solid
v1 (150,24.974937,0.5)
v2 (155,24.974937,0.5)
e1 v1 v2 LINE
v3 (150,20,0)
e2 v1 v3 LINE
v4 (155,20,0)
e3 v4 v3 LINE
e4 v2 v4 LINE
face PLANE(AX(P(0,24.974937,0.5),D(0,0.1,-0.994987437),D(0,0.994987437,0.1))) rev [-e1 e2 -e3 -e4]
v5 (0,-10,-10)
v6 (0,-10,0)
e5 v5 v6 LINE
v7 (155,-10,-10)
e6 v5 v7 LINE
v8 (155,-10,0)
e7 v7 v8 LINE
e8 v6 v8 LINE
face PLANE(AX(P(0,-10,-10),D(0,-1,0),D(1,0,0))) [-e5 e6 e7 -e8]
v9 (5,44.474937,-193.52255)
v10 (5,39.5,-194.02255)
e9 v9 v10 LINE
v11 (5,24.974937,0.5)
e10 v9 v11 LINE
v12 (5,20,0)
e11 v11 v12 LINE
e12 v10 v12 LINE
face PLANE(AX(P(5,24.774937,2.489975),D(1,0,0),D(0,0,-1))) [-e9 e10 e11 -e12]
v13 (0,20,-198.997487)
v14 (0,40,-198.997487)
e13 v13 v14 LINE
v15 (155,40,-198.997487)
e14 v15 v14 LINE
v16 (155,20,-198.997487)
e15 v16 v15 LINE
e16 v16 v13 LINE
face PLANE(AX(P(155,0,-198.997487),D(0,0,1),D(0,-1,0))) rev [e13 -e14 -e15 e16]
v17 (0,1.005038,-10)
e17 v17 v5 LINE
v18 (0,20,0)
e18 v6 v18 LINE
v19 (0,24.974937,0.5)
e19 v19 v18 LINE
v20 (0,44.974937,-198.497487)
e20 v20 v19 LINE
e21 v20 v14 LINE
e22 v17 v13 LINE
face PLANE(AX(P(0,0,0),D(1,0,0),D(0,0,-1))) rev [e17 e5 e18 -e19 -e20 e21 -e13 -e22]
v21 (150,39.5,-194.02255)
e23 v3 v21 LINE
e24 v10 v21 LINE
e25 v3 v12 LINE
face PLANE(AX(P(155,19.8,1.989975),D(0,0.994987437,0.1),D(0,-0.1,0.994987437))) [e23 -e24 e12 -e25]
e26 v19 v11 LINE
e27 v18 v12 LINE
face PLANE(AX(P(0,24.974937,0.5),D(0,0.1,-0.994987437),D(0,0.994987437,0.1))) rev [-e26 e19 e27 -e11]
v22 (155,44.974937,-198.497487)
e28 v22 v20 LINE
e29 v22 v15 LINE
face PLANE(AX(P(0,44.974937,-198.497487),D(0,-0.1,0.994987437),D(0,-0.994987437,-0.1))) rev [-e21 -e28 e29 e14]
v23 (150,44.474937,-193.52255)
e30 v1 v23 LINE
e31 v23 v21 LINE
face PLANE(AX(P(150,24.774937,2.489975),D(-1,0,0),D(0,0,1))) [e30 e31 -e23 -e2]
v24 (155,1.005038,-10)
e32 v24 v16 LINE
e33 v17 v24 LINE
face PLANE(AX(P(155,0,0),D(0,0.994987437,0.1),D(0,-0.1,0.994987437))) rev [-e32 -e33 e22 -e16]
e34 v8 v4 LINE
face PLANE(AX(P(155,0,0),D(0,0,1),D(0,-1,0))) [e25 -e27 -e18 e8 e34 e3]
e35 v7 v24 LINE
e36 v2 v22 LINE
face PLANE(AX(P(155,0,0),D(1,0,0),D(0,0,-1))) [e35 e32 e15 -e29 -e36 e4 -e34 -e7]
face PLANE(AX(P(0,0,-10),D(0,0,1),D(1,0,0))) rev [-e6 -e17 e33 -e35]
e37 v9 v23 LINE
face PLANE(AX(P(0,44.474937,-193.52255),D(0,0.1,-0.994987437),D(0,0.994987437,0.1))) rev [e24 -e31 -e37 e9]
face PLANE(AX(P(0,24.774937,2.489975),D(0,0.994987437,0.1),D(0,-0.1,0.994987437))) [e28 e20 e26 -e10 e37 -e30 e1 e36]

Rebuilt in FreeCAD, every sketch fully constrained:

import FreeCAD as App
import Part
import Sketcher

doc = App.newDocument("Part")
body = doc.addObject("PartDesign::Body", "Body")

# Sketch on YZ plane
sketch1 = body.newObject("Sketcher::SketchObject", "Sketch")
sketch1.AttachmentSupport = (doc.getObject("YZ_Plane"), [""])
sketch1.MapMode = "FlatFace"
sketch1.addGeometry([
    Part.LineSegment(App.Vector(20, 0, 0), App.Vector(0, 0, 0)),
    Part.LineSegment(App.Vector(0, 0, 0), App.Vector(20, -199, 0)),
    Part.LineSegment(App.Vector(20, -199, 0), App.Vector(40, -199, 0)),
    Part.LineSegment(App.Vector(40, -199, 0), App.Vector(20, 0, 0)),
], False)
sketch1.addConstraint([
    Sketcher.Constraint("Coincident", 0, 2, 1, 1),
    Sketcher.Constraint("Coincident", 1, 2, 2, 1),
    Sketcher.Constraint("Coincident", 2, 2, 3, 1),
    Sketcher.Constraint("Coincident", 3, 2, 0, 1),
    Sketcher.Constraint("Horizontal", 0),
    Sketcher.Constraint("Horizontal", 2),
    Sketcher.Constraint("Coincident", 0, 2, -1, 1),
    Sketcher.Constraint("Parallel", 1, 3),
    Sketcher.Constraint("Vertical", 1, 2, 3, 2),
    Sketcher.Constraint("DistanceX", 0, 2, 0, 1, 20.0),
    Sketcher.Constraint("Distance", 1, 200.0),
])
pad1 = body.newObject("PartDesign::Pad", "Pad")
pad1.Profile = sketch1
pad1.Length = 155

# Sketch on XY plane
sketch2 = body.newObject("Sketcher::SketchObject", "Sketch001")
sketch2.AttachmentSupport = (doc.getObject("XY_Plane"), [""])
sketch2.MapMode = "FlatFace"
sketch2.addGeometry([
    Part.LineSegment(App.Vector(0, 10, 0), App.Vector(0, -10, 0)),
    Part.LineSegment(App.Vector(0, -10, 0), App.Vector(155, -10, 0)),
    Part.LineSegment(App.Vector(155, -10, 0), App.Vector(155, 10, 0)),
    Part.LineSegment(App.Vector(155, 10, 0), App.Vector(0, 10, 0)),
], False)
sketch2.addConstraint([
    Sketcher.Constraint("Coincident", 0, 2, 1, 1),
    Sketcher.Constraint("Coincident", 1, 2, 2, 1),
    Sketcher.Constraint("Coincident", 2, 2, 3, 1),
    Sketcher.Constraint("Coincident", 3, 2, 0, 1),
    Sketcher.Constraint("Vertical", 0),
    Sketcher.Constraint("Horizontal", 1),
    Sketcher.Constraint("Vertical", 2),
    Sketcher.Constraint("Horizontal", 3),
    Sketcher.Constraint("Symmetric", 0, 2, 3, 2, -1, 1),
    Sketcher.Constraint("DistanceX", 1, 1, 1, 2, 155.0),
    Sketcher.Constraint("DistanceY", 0, 2, 0, 1, 20.0),
])
pad2 = body.newObject("PartDesign::Pad", "Pad001")
pad2.Profile = sketch2
pad2.Length = 10
pad2.Reversed = True

# Sketch on an angled plane
sketch3 = body.newObject("Sketcher::SketchObject", "Sketch002")
sketch3.Placement = App.Placement(App.Vector(0, 19.8, 1.989975), App.Rotation(App.Vector(1, 0, 0), App.Vector(0, 0.1, -0.994987437), App.Vector(0, 0.994987437, 0.1), "ZXY"))
sketch3.addGeometry([
    Part.LineSegment(App.Vector(0, 202, 0), App.Vector(0, 2, 0)),  # 0
    Part.LineSegment(App.Vector(0, 2, 0), App.Vector(5, 2, 0)),  # 1
    Part.LineSegment(App.Vector(5, 2, 0), App.Vector(5, 197, 0)),  # 2
    Part.LineSegment(App.Vector(5, 197, 0), App.Vector(150, 197, 0)),  # 3
    Part.LineSegment(App.Vector(150, 197, 0), App.Vector(150, 2, 0)),  # 4
    Part.LineSegment(App.Vector(150, 2, 0), App.Vector(155, 2, 0)),  # 5
    Part.LineSegment(App.Vector(155, 2, 0), App.Vector(155, 202, 0)),  # 6
    Part.LineSegment(App.Vector(155, 202, 0), App.Vector(0, 202, 0)),  # 7
], False)
sketch3.addConstraint([
    Sketcher.Constraint("Coincident", 0, 2, 1, 1),
    Sketcher.Constraint("Coincident", 1, 2, 2, 1),
    Sketcher.Constraint("Coincident", 2, 2, 3, 1),
    Sketcher.Constraint("Coincident", 3, 2, 4, 1),
    Sketcher.Constraint("Coincident", 4, 2, 5, 1),
    Sketcher.Constraint("Coincident", 5, 2, 6, 1),
    Sketcher.Constraint("Coincident", 6, 2, 7, 1),
    Sketcher.Constraint("Coincident", 7, 2, 0, 1),
    Sketcher.Constraint("Vertical", 0),
    Sketcher.Constraint("Horizontal", 1),
    Sketcher.Constraint("Vertical", 2),
    Sketcher.Constraint("Horizontal", 3),
    Sketcher.Constraint("Vertical", 4),
    Sketcher.Constraint("Horizontal", 5),
    Sketcher.Constraint("Vertical", 6),
    Sketcher.Constraint("Horizontal", 7),
    Sketcher.Constraint("PointOnObject", 0, 2, -2),
    Sketcher.Constraint("Horizontal", 1, 2, 4, 2),
    Sketcher.Constraint("Equal", 1, 5),
    Sketcher.Constraint("DistanceX", 1, 1, 1, 2, 5.0),
    Sketcher.Constraint("DistanceX", 3, 1, 3, 2, 145.0),
    Sketcher.Constraint("DistanceY", 0, 2, 0, 1, 200.0),
    Sketcher.Constraint("DistanceY", 2, 1, 2, 2, 195.0),
    Sketcher.Constraint("DistanceY", -1, 1, 0, 2, 2.0),
])
pad3 = body.newObject("PartDesign::Pad", "Pad002")
pad3.Profile = sketch3
pad3.Length = 5

doc.recompute()
